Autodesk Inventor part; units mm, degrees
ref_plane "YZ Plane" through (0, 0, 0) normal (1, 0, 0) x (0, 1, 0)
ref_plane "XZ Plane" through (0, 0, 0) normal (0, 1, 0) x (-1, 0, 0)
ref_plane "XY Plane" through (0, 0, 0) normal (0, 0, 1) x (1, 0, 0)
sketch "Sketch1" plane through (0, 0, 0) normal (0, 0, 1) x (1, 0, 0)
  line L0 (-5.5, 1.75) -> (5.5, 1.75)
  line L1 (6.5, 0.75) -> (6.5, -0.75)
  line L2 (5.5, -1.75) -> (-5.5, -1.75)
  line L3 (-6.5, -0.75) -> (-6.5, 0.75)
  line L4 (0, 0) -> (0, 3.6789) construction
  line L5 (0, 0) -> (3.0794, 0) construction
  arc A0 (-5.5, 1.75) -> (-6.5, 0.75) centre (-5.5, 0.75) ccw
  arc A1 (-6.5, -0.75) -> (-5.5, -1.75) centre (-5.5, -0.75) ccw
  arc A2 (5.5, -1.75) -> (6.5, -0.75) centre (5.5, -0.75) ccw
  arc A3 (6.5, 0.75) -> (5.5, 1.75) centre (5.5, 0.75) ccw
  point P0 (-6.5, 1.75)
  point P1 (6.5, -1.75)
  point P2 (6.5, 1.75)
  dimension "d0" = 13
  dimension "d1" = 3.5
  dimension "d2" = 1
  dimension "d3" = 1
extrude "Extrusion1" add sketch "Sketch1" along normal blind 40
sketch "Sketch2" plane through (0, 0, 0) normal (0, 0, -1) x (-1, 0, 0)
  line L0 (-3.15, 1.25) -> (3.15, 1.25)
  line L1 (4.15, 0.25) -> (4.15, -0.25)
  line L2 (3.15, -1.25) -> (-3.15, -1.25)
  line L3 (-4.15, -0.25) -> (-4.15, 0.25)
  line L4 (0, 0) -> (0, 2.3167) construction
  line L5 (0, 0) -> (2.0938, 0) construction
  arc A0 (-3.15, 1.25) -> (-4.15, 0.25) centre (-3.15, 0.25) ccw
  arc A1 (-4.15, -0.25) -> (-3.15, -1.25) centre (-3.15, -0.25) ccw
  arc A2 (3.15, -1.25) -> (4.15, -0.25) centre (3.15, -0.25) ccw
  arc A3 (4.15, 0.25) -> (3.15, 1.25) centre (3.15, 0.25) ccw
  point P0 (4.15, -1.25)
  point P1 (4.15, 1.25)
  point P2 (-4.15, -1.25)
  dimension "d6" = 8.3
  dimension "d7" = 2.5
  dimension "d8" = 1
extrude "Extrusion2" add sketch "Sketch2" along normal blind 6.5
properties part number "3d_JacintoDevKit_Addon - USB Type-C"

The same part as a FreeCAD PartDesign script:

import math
import FreeCAD as App
import Part
import Sketcher

doc = App.newDocument("Part")
body = doc.addObject("PartDesign::Body", "Body")

# Sketch on XY plane
sketch1 = doc.addObject("Sketcher::SketchObject", "Sketch")
body.addObject(sketch1)
sketch1.AttachmentSupport = (doc.XY_Plane, [""])
sketch1.MapMode = "FlatFace"
sketch1.addGeometry([
    Part.LineSegment(App.Vector(5.5, 1.75, 0), App.Vector(-5.5, 1.75, 0)),  # 0
    Part.ArcOfCircle(Part.Circle(App.Vector(-5.5, 0.75, 0), App.Vector(0, 0, 1), 1), math.radians(90), math.radians(180)),  # 1
    Part.LineSegment(App.Vector(-6.5, 0.75, 0), App.Vector(-6.5, -0.75, 0)),  # 2
    Part.ArcOfCircle(Part.Circle(App.Vector(-5.5, -0.75, 0), App.Vector(0, 0, 1), 1), math.radians(180), math.radians(270)),  # 3
    Part.LineSegment(App.Vector(-5.5, -1.75, 0), App.Vector(5.5, -1.75, 0)),  # 4
    Part.ArcOfCircle(Part.Circle(App.Vector(5.5, -0.75, 0), App.Vector(0, 0, 1), 1), math.radians(-90), math.radians(0)),  # 5
    Part.LineSegment(App.Vector(6.5, -0.75, 0), App.Vector(6.5, 0.75, 0)),  # 6
    Part.ArcOfCircle(Part.Circle(App.Vector(5.5, 0.75, 0), App.Vector(0, 0, 1), 1), math.radians(0), math.radians(90)),  # 7
], False)
sketch1.addConstraint([
    Sketcher.Constraint("Tangent", 0, 2, 1, 1),
    Sketcher.Constraint("Tangent", 1, 2, 2, 1),
    Sketcher.Constraint("Tangent", 2, 2, 3, 1),
    Sketcher.Constraint("Tangent", 3, 2, 4, 1),
    Sketcher.Constraint("Tangent", 4, 2, 5, 1),
    Sketcher.Constraint("Tangent", 5, 2, 6, 1),
    Sketcher.Constraint("Tangent", 6, 2, 7, 1),
    Sketcher.Constraint("Tangent", 7, 2, 0, 1),
    Sketcher.Constraint("Horizontal", 0),
    Sketcher.Constraint("Vertical", 2),
    Sketcher.Constraint("Horizontal", 4),
    Sketcher.Constraint("Vertical", 6),
    Sketcher.Constraint("Equal", 1, 3),
    Sketcher.Constraint("Equal", 3, 5),
    Sketcher.Constraint("Equal", 5, 7),
    Sketcher.Constraint("Symmetric", 1, 3, 5, 3, -1, 1),
    Sketcher.Constraint("Radius", 1, 1.0),
    Sketcher.Constraint("DistanceY", 3, 2, 0, 2, 3.5),
    Sketcher.Constraint("DistanceX", 0, 2, 0, 1, 11.0),
])
pad1 = doc.addObject("PartDesign::Pad", "Pad")
body.addObject(pad1)
pad1.Profile = sketch1
pad1.Length = 40

# Sketch on XY plane
sketch2 = doc.addObject("Sketcher::SketchObject", "Sketch001")
body.addObject(sketch2)
sketch2.AttachmentSupport = (doc.XY_Plane, [""])
sketch2.MapMode = "FlatFace"
sketch2.addGeometry([
    Part.LineSegment(App.Vector(-3.15, 1.25, 0), App.Vector(3.15, 1.25, 0)),  # 0
    Part.ArcOfCircle(Part.Circle(App.Vector(3.15, 0.25, 0), App.Vector(0, 0, 1), 1), math.radians(0), math.radians(90)),  # 1
    Part.LineSegment(App.Vector(4.15, 0.25, 0), App.Vector(4.15, -0.25, 0)),  # 2
    Part.ArcOfCircle(Part.Circle(App.Vector(3.15, -0.25, 0), App.Vector(0, 0, 1), 1), math.radians(-90), math.radians(0)),  # 3
    Part.LineSegment(App.Vector(3.15, -1.25, 0), App.Vector(-3.15, -1.25, 0)),  # 4
    Part.ArcOfCircle(Part.Circle(App.Vector(-3.15, -0.25, 0), App.Vector(0, 0, 1), 1), math.radians(180), math.radians(270)),  # 5
    Part.LineSegment(App.Vector(-4.15, -0.25, 0), App.Vector(-4.15, 0.25, 0)),  # 6
    Part.ArcOfCircle(Part.Circle(App.Vector(-3.15, 0.25, 0), App.Vector(0, 0, 1), 1), math.radians(90), math.radians(180)),  # 7
], False)
sketch2.addConstraint([
    Sketcher.Constraint("Tangent", 0, 2, 1, 2),
    Sketcher.Constraint("Tangent", 1, 1, 2, 1),
    Sketcher.Constraint("Tangent", 2, 2, 3, 2),
    Sketcher.Constraint("Tangent", 3, 1, 4, 1),
    Sketcher.Constraint("Tangent", 4, 2, 5, 2),
    Sketcher.Constraint("Tangent", 5, 1, 6, 1),
    Sketcher.Constraint("Tangent", 6, 2, 7, 2),
    Sketcher.Constraint("Tangent", 7, 1, 0, 1),
    Sketcher.Constraint("Horizontal", 0),
    Sketcher.Constraint("Vertical", 2),
    Sketcher.Constraint("Horizontal", 4),
    Sketcher.Constraint("Vertical", 6),
    Sketcher.Constraint("Equal", 1, 3),
    Sketcher.Constraint("Equal", 3, 5),
    Sketcher.Constraint("Equal", 5, 7),
    Sketcher.Constraint("Symmetric", 1, 3, 5, 3, -1, 1),
    Sketcher.Constraint("Radius", 1, 1.0),
    Sketcher.Constraint("DistanceY", 3, 1, 0, 2, 2.5),
    Sketcher.Constraint("DistanceX", 0, 1, 0, 2, 6.3),
])
pad2 = doc.addObject("PartDesign::Pad", "Pad001")
body.addObject(pad2)
pad2.Profile = sketch2
pad2.Length = 6.5
pad2.Reversed = True

doc.recompute()
